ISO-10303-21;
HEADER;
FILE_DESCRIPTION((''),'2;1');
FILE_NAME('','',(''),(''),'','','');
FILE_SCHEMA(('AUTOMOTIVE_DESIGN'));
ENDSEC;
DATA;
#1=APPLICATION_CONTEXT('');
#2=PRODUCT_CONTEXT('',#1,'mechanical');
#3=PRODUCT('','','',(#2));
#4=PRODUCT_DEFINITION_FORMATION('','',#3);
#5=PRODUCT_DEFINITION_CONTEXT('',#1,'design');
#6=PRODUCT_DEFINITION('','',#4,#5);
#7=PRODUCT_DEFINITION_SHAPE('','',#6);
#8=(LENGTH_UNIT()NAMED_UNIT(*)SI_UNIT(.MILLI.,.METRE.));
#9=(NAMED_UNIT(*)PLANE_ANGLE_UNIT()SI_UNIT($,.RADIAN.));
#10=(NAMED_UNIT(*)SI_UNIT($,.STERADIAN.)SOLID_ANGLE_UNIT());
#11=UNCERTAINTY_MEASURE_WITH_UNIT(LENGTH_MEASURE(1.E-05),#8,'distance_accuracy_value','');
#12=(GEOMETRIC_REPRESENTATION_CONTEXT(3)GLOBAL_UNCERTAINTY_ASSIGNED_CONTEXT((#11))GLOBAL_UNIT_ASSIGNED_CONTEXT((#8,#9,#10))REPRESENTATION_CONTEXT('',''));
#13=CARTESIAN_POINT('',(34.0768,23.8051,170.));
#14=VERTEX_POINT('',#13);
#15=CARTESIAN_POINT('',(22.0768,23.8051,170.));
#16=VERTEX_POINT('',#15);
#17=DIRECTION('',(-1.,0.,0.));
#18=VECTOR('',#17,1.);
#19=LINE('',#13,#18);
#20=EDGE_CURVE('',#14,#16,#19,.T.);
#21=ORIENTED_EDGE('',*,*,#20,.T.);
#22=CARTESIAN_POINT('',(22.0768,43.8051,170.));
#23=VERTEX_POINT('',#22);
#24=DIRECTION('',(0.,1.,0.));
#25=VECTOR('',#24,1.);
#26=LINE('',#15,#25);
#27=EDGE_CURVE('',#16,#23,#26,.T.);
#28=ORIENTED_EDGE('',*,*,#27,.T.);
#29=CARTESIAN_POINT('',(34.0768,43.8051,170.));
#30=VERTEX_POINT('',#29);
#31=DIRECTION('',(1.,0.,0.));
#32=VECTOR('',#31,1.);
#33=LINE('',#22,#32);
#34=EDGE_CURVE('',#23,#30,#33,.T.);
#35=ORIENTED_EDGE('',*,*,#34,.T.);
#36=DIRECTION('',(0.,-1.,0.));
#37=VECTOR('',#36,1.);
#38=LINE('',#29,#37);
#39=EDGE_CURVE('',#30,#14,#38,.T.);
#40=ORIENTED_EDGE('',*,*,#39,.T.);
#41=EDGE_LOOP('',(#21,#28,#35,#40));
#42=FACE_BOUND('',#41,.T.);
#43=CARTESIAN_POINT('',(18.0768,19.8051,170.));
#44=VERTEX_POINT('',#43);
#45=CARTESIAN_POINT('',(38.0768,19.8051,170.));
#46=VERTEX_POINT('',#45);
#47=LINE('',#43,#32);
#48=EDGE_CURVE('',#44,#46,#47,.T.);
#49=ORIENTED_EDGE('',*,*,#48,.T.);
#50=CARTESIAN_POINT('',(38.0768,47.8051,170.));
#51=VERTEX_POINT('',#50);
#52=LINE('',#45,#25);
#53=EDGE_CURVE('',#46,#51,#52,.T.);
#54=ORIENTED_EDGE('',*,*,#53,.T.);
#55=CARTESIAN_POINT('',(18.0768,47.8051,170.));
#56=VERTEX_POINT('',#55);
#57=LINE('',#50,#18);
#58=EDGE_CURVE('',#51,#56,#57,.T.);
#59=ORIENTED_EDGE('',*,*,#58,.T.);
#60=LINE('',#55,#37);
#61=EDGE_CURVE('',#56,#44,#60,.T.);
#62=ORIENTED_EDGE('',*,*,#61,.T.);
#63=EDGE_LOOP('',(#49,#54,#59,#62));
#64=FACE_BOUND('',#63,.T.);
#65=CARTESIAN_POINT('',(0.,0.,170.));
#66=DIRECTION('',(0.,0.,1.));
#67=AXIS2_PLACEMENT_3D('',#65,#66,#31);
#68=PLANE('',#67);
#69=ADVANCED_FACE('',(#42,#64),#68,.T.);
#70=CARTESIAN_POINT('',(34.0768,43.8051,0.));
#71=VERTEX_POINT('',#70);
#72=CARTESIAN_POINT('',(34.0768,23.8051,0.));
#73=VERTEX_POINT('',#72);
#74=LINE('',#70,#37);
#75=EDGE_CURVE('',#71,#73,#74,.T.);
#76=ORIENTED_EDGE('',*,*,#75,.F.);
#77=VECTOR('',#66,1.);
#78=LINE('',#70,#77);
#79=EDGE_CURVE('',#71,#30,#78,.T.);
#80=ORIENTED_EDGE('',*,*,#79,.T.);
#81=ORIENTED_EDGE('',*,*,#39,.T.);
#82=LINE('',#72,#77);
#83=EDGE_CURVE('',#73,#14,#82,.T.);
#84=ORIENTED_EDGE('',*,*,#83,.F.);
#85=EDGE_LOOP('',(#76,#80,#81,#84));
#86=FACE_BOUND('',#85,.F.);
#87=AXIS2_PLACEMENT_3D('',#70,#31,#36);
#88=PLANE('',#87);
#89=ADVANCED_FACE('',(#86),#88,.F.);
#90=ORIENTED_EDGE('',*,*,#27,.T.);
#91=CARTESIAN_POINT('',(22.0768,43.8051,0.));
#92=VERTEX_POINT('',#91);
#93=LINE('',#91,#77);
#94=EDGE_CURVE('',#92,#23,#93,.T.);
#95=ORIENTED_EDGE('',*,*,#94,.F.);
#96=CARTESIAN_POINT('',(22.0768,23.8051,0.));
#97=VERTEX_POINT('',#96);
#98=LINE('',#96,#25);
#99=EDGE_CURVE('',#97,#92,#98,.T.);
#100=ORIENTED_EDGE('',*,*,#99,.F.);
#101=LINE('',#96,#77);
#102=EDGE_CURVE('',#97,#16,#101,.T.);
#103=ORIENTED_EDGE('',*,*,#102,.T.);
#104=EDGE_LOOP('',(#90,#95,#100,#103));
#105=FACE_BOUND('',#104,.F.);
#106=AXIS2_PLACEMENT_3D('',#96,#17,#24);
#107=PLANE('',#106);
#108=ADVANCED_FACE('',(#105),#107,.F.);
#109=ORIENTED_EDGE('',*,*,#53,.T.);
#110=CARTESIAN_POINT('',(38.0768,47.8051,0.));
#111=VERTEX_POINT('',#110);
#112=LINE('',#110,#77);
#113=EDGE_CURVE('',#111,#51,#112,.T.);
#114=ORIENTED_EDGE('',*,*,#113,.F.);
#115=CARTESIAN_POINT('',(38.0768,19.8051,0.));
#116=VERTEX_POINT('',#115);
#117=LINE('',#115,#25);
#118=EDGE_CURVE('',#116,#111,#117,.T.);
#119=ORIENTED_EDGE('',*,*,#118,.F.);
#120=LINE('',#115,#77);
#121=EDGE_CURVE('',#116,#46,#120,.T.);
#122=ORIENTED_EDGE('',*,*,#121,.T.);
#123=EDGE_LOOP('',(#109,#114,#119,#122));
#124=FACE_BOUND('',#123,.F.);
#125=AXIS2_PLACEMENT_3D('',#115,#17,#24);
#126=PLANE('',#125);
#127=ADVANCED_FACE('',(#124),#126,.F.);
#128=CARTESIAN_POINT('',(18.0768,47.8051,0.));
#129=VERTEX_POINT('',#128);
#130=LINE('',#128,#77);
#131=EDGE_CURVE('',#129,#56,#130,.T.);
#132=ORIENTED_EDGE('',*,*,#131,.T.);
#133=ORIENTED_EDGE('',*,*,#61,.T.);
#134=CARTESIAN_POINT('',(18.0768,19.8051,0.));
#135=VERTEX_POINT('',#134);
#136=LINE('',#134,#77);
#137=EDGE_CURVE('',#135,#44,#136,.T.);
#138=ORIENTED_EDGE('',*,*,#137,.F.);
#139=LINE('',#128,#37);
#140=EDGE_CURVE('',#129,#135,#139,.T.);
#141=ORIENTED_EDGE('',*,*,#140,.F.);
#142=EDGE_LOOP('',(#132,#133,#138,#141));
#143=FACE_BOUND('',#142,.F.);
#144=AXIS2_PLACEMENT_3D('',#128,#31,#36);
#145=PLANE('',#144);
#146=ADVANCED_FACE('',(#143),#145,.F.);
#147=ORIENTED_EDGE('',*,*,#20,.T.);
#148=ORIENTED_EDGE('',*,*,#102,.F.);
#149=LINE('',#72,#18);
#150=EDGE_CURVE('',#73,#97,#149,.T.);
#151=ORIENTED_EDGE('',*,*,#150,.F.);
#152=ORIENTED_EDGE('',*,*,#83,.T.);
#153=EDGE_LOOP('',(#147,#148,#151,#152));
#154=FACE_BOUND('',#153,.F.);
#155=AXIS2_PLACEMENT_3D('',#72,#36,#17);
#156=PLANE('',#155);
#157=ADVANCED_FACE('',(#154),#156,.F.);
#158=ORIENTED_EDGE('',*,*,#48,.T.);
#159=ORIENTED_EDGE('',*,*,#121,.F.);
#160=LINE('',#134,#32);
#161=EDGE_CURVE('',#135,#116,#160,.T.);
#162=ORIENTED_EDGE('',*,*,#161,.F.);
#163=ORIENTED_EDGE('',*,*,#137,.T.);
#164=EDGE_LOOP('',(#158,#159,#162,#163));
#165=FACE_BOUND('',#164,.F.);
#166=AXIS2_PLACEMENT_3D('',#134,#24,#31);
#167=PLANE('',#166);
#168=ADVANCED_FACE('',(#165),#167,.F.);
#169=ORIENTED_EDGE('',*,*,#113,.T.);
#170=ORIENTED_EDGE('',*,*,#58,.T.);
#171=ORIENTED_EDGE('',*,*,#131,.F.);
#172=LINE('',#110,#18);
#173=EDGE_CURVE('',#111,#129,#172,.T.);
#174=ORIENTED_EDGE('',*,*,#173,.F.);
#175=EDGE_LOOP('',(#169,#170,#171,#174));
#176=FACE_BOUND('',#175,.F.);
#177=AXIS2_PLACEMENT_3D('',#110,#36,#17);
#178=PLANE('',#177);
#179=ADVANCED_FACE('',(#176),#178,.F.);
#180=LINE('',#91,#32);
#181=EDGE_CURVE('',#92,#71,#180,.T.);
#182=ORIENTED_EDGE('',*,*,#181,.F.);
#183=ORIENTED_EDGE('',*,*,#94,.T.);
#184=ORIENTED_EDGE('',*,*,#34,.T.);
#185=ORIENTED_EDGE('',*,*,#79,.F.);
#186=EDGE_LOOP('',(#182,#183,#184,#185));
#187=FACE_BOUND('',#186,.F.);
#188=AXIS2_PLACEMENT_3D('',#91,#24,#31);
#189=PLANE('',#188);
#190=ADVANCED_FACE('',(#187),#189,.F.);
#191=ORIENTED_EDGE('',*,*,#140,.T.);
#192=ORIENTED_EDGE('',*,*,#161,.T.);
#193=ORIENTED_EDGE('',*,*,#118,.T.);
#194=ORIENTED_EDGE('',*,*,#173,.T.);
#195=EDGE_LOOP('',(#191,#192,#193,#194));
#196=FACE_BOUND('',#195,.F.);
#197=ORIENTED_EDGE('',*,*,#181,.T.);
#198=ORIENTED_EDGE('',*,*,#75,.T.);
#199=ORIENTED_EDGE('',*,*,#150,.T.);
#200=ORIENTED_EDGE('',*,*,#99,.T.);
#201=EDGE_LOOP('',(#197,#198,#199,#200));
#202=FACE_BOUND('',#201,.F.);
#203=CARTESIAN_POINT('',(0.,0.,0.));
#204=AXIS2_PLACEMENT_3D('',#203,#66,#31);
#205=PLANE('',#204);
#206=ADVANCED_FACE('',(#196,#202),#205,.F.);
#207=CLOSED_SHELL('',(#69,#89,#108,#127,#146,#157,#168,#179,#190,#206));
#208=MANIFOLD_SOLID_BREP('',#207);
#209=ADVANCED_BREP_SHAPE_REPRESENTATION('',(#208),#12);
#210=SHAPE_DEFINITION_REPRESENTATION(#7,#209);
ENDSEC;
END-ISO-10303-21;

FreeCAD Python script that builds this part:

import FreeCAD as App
import Part
import Sketcher

V = App.Vector

doc = App.newDocument("Part")
body = doc.addObject("PartDesign::Body", "Body")

# Sketch on XY plane
sketch1 = body.newObject("Sketcher::SketchObject", "Sketch")
sketch1.AttachmentSupport = (doc.getObject("XY_Plane"), [""])
sketch1.MapMode = "FlatFace"
sketch1.addGeometry([
    Part.LineSegment(V(38, 20, 0), V(38, 48, 0)),  # 0
    Part.LineSegment(V(38, 48, 0), V(18, 48, 0)),  # 1
    Part.LineSegment(V(18, 48, 0), V(18, 20, 0)),  # 2
    Part.LineSegment(V(18, 20, 0), V(38, 20, 0)),  # 3
    Part.LineSegment(V(22, 24, 0), V(22, 44, 0)),  # 4
    Part.LineSegment(V(22, 44, 0), V(34, 44, 0)),  # 5
    Part.LineSegment(V(34, 44, 0), V(34, 24, 0)),  # 6
    Part.LineSegment(V(34, 24, 0), V(22, 24, 0)),  # 7
], False)
sketch1.addConstraint([
    Sketcher.Constraint("Coincident", 0, 2, 1, 1),
    Sketcher.Constraint("Coincident", 1, 2, 2, 1),
    Sketcher.Constraint("Coincident", 2, 2, 3, 1),
    Sketcher.Constraint("Coincident", 3, 2, 0, 1),
    Sketcher.Constraint("Coincident", 4, 2, 5, 1),
    Sketcher.Constraint("Coincident", 5, 2, 6, 1),
    Sketcher.Constraint("Coincident", 6, 2, 7, 1),
    Sketcher.Constraint("Coincident", 7, 2, 4, 1),
    Sketcher.Constraint("Vertical", 0),
    Sketcher.Constraint("Horizontal", 1),
    Sketcher.Constraint("Vertical", 2),
    Sketcher.Constraint("Horizontal", 3),
    Sketcher.Constraint("Vertical", 4),
    Sketcher.Constraint("Horizontal", 5),
    Sketcher.Constraint("Vertical", 6),
    Sketcher.Constraint("Horizontal", 7),
    Sketcher.Constraint("Equal", 3, 4),
    Sketcher.Constraint("DistanceX", 1, 2, 1, 1, 20.0),
    Sketcher.Constraint("DistanceX", 5, 1, 5, 2, 12.0),
    Sketcher.Constraint("DistanceX", 1, 2, 4, 2, 4.0),
    Sketcher.Constraint("DistanceY", 4, 2, 1, 2, 4.0),
    Sketcher.Constraint("DistanceY", 3, 2, 6, 2, 4.0),
    Sketcher.Constraint("DistanceY", -1, 1, 0, 2, 47.805),
    Sketcher.Constraint("DistanceX", -1, 1, 0, 2, 38.0768),
])
pad1 = body.newObject("PartDesign::Pad", "Pad")
pad1.Profile = sketch1
pad1.Length = 170

doc.recompute()
